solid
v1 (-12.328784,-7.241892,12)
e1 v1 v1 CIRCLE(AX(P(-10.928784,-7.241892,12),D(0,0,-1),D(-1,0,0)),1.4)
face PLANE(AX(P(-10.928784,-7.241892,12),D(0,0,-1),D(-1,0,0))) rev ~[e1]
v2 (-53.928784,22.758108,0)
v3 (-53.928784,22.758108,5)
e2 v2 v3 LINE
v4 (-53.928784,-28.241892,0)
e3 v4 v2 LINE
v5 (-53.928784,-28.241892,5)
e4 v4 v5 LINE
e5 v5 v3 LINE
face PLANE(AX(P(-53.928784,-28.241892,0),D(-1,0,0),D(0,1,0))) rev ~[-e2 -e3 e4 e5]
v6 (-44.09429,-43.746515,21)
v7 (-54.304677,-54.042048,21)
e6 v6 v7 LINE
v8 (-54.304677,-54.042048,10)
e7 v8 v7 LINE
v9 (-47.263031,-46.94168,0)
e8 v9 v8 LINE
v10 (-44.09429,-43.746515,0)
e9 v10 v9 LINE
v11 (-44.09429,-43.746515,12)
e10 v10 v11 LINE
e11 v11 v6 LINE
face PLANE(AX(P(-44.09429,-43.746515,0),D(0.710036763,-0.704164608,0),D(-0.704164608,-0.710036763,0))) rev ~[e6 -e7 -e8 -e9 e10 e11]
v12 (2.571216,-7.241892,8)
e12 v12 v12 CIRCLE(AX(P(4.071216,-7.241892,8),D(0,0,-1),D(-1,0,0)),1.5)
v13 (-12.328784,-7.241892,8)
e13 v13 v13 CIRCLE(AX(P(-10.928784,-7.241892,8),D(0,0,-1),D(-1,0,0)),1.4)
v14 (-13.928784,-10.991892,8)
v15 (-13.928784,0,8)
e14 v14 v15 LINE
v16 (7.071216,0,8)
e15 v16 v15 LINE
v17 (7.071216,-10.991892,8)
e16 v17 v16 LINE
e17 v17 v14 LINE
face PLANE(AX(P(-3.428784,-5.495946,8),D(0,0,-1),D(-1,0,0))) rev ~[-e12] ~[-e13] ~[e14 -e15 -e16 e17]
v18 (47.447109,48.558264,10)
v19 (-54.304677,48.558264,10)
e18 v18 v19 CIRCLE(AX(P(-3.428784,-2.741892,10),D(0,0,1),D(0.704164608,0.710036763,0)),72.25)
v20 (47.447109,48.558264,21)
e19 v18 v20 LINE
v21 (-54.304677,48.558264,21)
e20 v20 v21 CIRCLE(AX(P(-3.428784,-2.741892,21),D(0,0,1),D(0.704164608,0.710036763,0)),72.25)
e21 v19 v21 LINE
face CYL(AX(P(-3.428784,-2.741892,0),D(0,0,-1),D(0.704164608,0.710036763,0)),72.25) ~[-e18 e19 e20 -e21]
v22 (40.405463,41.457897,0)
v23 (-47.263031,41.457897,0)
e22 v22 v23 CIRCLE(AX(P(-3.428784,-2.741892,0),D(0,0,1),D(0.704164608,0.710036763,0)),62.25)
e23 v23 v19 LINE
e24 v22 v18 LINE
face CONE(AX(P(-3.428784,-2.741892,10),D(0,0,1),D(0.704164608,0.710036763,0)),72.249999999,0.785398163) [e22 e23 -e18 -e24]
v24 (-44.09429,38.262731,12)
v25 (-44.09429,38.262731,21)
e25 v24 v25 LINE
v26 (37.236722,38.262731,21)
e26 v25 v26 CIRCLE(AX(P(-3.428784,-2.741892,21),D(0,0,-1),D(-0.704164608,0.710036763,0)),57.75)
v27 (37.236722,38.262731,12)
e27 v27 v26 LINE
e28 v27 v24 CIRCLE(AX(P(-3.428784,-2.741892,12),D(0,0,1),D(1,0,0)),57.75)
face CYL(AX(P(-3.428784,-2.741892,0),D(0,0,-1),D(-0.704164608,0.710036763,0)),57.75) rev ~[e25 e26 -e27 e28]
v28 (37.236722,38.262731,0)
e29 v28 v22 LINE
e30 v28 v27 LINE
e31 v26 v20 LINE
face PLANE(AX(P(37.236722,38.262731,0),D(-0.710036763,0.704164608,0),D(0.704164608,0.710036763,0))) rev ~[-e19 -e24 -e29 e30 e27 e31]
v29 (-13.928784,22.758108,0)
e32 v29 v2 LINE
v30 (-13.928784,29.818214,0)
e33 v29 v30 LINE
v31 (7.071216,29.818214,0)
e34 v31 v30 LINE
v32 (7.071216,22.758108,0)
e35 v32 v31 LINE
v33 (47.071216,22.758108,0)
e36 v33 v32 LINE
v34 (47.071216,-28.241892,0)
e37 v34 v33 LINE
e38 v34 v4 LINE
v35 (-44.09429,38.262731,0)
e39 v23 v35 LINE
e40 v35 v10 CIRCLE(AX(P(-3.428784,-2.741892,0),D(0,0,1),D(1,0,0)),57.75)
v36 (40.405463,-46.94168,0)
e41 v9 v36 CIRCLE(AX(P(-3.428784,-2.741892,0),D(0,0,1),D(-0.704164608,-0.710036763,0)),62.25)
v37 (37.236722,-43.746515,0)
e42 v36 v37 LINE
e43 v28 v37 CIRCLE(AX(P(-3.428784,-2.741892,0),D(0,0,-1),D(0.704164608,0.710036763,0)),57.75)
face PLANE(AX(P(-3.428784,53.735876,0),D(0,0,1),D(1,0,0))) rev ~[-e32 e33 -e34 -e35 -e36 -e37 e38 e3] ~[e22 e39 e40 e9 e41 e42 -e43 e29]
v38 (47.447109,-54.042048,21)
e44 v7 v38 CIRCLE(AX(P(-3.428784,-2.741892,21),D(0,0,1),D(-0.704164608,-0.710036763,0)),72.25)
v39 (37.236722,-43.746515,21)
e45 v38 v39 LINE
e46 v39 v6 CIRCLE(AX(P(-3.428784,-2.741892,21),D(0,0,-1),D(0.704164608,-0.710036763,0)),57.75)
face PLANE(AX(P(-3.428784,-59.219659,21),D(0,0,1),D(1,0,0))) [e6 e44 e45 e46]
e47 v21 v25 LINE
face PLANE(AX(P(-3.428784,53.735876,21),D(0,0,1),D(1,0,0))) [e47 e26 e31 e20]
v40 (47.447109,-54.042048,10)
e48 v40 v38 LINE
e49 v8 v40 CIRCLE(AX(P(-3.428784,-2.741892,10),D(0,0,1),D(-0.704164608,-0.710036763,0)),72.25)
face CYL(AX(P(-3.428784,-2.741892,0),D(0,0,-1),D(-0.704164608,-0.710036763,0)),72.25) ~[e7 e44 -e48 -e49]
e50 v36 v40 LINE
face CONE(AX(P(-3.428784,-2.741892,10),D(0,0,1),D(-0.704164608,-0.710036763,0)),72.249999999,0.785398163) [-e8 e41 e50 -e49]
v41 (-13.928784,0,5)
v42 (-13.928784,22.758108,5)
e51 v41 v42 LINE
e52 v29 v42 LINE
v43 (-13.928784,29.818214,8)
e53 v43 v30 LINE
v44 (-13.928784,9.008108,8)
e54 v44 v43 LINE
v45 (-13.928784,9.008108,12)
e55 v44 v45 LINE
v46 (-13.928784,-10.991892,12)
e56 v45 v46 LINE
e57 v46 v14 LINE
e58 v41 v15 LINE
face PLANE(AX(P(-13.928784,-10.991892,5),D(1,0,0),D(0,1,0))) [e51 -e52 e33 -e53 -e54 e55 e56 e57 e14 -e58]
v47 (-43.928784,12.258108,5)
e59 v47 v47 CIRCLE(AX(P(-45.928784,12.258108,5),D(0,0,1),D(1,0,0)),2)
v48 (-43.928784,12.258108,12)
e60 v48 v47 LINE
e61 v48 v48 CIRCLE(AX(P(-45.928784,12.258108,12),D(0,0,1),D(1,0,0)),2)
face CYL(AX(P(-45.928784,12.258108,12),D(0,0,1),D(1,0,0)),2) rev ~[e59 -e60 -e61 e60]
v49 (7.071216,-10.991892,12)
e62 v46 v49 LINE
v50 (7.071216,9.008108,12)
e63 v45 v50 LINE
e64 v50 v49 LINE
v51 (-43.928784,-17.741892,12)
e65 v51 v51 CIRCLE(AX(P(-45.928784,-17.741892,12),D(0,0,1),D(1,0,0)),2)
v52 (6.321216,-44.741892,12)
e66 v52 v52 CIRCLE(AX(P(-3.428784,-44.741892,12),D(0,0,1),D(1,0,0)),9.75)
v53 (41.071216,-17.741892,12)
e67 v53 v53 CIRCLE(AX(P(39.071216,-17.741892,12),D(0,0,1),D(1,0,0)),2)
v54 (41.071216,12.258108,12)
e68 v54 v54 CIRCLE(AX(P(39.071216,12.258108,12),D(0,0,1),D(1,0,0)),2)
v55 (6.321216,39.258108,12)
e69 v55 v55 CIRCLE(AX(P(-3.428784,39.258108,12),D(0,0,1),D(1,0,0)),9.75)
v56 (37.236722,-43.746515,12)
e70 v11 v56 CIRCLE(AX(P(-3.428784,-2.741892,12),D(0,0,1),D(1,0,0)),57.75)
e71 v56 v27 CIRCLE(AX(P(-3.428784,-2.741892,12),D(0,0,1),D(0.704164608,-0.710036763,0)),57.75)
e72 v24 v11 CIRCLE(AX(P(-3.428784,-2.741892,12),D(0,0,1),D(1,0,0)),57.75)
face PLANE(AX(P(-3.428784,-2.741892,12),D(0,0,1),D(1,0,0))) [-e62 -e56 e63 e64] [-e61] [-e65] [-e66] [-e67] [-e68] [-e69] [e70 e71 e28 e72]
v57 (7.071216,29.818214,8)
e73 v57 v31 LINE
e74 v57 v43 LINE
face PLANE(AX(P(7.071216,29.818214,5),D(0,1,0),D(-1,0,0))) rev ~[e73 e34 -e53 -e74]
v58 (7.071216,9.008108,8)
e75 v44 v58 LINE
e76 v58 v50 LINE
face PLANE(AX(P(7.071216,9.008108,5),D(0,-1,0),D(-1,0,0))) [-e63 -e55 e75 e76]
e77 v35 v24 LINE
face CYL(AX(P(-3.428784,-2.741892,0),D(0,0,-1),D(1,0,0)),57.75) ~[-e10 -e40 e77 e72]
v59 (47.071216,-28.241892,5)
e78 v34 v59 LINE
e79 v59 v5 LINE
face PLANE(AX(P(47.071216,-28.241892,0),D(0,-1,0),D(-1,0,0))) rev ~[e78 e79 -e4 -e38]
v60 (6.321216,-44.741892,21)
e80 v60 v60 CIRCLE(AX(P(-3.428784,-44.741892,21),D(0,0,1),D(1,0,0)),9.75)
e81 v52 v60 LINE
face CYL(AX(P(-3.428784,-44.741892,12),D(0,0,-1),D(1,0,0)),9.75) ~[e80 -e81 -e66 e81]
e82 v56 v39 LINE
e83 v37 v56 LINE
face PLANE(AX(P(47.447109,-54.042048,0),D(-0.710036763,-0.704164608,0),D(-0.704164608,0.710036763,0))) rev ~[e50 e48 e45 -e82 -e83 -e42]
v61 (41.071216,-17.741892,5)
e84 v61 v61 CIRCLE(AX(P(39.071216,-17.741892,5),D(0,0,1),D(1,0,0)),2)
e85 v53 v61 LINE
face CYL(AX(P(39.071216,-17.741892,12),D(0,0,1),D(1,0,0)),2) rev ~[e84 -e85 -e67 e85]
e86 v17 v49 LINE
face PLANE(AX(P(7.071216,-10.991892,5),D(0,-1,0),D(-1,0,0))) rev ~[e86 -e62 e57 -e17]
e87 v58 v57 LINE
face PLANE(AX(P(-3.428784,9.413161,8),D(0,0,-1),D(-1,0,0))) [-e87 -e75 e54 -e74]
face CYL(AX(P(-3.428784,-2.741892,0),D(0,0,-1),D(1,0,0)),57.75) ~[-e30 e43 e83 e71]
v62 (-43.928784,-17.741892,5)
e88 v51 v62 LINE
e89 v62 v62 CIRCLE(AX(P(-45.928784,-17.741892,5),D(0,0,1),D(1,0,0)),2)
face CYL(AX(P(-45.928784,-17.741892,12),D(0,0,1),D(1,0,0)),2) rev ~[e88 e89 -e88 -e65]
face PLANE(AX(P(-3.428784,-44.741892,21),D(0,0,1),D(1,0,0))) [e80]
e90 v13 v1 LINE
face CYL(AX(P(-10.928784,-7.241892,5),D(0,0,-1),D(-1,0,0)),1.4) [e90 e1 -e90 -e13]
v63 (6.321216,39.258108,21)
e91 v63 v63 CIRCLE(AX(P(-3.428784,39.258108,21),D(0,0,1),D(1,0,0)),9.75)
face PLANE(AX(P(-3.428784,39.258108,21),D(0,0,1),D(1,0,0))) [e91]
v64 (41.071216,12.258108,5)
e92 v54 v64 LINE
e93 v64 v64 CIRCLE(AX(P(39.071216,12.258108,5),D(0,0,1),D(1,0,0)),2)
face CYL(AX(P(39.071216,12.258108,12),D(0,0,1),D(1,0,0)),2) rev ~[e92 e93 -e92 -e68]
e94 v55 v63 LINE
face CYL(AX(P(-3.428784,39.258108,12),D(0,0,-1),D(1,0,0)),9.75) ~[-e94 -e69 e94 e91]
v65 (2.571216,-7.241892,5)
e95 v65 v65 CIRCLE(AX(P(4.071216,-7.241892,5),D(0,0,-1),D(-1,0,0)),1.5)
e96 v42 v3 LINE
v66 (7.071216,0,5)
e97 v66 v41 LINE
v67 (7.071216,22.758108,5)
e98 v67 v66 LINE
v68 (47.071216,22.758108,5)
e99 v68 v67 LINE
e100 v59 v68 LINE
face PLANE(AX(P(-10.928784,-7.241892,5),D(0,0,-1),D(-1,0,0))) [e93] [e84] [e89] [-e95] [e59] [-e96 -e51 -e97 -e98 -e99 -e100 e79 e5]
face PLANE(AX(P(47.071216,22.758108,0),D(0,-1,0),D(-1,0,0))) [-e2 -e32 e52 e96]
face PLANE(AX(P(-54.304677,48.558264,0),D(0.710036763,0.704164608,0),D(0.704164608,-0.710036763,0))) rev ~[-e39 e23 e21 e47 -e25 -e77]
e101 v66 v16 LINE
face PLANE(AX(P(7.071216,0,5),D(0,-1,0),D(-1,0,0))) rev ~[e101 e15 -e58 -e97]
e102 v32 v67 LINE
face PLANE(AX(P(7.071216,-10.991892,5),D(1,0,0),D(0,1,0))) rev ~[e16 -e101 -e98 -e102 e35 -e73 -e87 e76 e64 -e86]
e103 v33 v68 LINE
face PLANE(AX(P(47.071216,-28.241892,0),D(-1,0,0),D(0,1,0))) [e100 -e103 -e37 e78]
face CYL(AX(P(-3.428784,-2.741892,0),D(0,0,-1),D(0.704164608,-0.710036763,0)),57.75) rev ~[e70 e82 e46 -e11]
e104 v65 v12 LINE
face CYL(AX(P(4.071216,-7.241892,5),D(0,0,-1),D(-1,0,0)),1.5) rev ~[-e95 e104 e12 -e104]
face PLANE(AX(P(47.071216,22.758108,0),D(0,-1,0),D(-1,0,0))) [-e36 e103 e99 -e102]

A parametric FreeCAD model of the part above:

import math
import FreeCAD as App
import Part
import Sketcher

V = App.Vector


def edges_at(feature, points):
    """Names of the edges that pass closest to the given points."""
    edges = feature.Shape.Edges
    near = lambda p: min(range(len(edges)), key=lambda i: edges[i].distToShape(Part.Vertex(*p))[0])
    return sorted({f"Edge{near(p) + 1}" for p in points})

doc = App.newDocument("Part")
body = doc.addObject("PartDesign::Body", "Body")

# Sketch on XY plane
sketch1 = doc.addObject("Sketcher::SketchObject", "Sketch")
body.addObject(sketch1)
sketch1.AttachmentSupport = (doc.XY_Plane, [""])
sketch1.MapMode = "FlatFace"
sketch1.addGeometry(Part.Circle(V(-3, -3, 0), V(0, 0, 1), 58), False)
sketch1.addConstraint([
    Sketcher.Constraint("Diameter", 0, 115.5),
    Sketcher.Constraint("DistanceY", 0, 3, -1, 1, 2.741892),
    Sketcher.Constraint("DistanceX", 0, 3, -1, 1, 3.428784),
])
pad1 = doc.addObject("PartDesign::Pad", "Pad")
body.addObject(pad1)
pad1.Profile = sketch1
pad1.Length = 12

# Sketch on XY plane
sketch2 = doc.addObject("Sketcher::SketchObject", "Sketch001")
body.addObject(sketch2)
sketch2.AttachmentSupport = (doc.XY_Plane, [""])
sketch2.MapMode = "FlatFace"
sketch2.addGeometry([
    Part.LineSegment(V(-54, 49, 0), V(-44, 38, 0)),  # 0
    Part.ArcOfCircle(Part.Circle(V(-3, -3, 0), V(0, 0, 1), 58), math.radians(45), math.radians(135)),  # 1
    Part.LineSegment(V(37, 38, 0), V(47, 49, 0)),  # 2
    Part.ArcOfCircle(Part.Circle(V(-3, -3, 0), V(0, 0, 1), 72), math.radians(45), math.radians(135)),  # 3
    Part.ArcOfCircle(Part.Circle(V(-3, -3, 0), V(0, 0, 1), 58), math.radians(-135), math.radians(-45)),  # 4
    Part.LineSegment(V(-44, -44, 0), V(-54, -54, 0)),  # 5
    Part.ArcOfCircle(Part.Circle(V(-3, -3, 0), V(0, 0, 1), 72), math.radians(-135), math.radians(-45)),  # 6
    Part.LineSegment(V(47, -54, 0), V(37, -44, 0)),  # 7
], False)
sketch2.addConstraint([
    Sketcher.Constraint("Coincident", 0, 2, 1, 2),
    Sketcher.Constraint("Coincident", 1, 1, 2, 1),
    Sketcher.Constraint("Coincident", 2, 2, 3, 1),
    Sketcher.Constraint("Coincident", 3, 2, 0, 1),
    Sketcher.Constraint("Coincident", 4, 1, 5, 1),
    Sketcher.Constraint("Coincident", 5, 2, 6, 1),
    Sketcher.Constraint("Coincident", 6, 2, 7, 1),
    Sketcher.Constraint("Coincident", 7, 2, 4, 2),
    Sketcher.Constraint("Coincident", 3, 3, 1, 3),
    Sketcher.Constraint("Coincident", 4, 3, 1, 3),
    Sketcher.Constraint("Coincident", 6, 3, 1, 3),
    Sketcher.Constraint("Equal", 1, 4),
    Sketcher.Constraint("Equal", 3, 6),
    Sketcher.Constraint("Parallel", 2, 5),
    Sketcher.Constraint("Parallel", 0, 7),
    Sketcher.Constraint("Horizontal", 0, 2, 1, 1),
    Sketcher.Constraint("Horizontal", 2, 2, 3, 2),
    Sketcher.Constraint("Horizontal", 5, 2, 6, 2),
    Sketcher.Constraint("Vertical", 0, 2, 4, 1),
    Sketcher.Constraint("Radius", 1, 57.75),
    Sketcher.Constraint("Radius", 3, 72.25),
    Sketcher.Constraint("DistanceX", 4, 1, 6, 2, 91.541399),
    Sketcher.Constraint("DistanceY", 1, 3, -1, 1, 2.741892),
    Sketcher.Constraint("DistanceX", 0, 2, -1, 1, 44.09429),
    Sketcher.Constraint("DistanceY", -1, 1, 0, 2, 38.262731),
])
pad2 = doc.addObject("PartDesign::Pad", "Pad001")
body.addObject(pad2)
pad2.Profile = sketch2
pad2.Length = 21

# Sketch on XY plane
sketch3 = doc.addObject("Sketcher::SketchObject", "Sketch002")
body.addObject(sketch3)
sketch3.AttachmentSupport = (doc.XY_Plane, [""])
sketch3.MapMode = "FlatFace"
sketch3.addGeometry([
    Part.LineSegment(V(47, 23, 0), V(47, -28, 0)),
    Part.LineSegment(V(47, -28, 0), V(-54, -28, 0)),
    Part.LineSegment(V(-54, -28, 0), V(-54, 23, 0)),
    Part.LineSegment(V(-54, 23, 0), V(47, 23, 0)),
], False)
sketch3.addConstraint([
    Sketcher.Constraint("Coincident", 0, 2, 1, 1),
    Sketcher.Constraint("Coincident", 1, 2, 2, 1),
    Sketcher.Constraint("Coincident", 2, 2, 3, 1),
    Sketcher.Constraint("Coincident", 3, 2, 0, 1),
    Sketcher.Constraint("Vertical", 0),
    Sketcher.Constraint("Horizontal", 1),
    Sketcher.Constraint("Vertical", 2),
    Sketcher.Constraint("Horizontal", 3),
    Sketcher.Constraint("DistanceX", 1, 2, 1, 1, 101.0),
    Sketcher.Constraint("DistanceY", 0, 2, 0, 1, 51.0),
    Sketcher.Constraint("DistanceY", 0, 2, -1, 1, 28.241892),
    Sketcher.Constraint("DistanceX", -1, 1, 0, 2, 47.071216),
])
pocket1 = doc.addObject("PartDesign::Pocket", "Pocket")
body.addObject(pocket1)
pocket1.Profile = sketch3
pocket1.Length = 5
pocket1.Reversed = True

# Sketch on XY plane
sketch4 = doc.addObject("Sketcher::SketchObject", "Sketch003")
body.addObject(sketch4)
sketch4.AttachmentSupport = (doc.XY_Plane, [""])
sketch4.MapMode = "FlatFace"
sketch4.AttachmentOffset = App.Placement(V(0, 0, 5), App.Rotation())
sketch4.addGeometry([
    Part.LineSegment(V(7, 9, 0), V(7, -11, 0)),
    Part.LineSegment(V(7, -11, 0), V(-14, -11, 0)),
    Part.LineSegment(V(-14, -11, 0), V(-14, 9, 0)),
    Part.LineSegment(V(-14, 9, 0), V(7, 9, 0)),
], False)
sketch4.addConstraint([
    Sketcher.Constraint("Coincident", 0, 2, 1, 1),
    Sketcher.Constraint("Coincident", 1, 2, 2, 1),
    Sketcher.Constraint("Coincident", 2, 2, 3, 1),
    Sketcher.Constraint("Coincident", 3, 2, 0, 1),
    Sketcher.Constraint("Vertical", 0),
    Sketcher.Constraint("Horizontal", 1),
    Sketcher.Constraint("Vertical", 2),
    Sketcher.Constraint("Horizontal", 3),
    Sketcher.Constraint("DistanceX", 1, 2, 1, 1, 21.0),
    Sketcher.Constraint("DistanceY", 0, 2, 0, 1, 20.0),
    Sketcher.Constraint("DistanceY", 0, 2, -1, 1, 10.991892),
    Sketcher.Constraint("DistanceX", -1, 1, 0, 2, 7.071216),
])
pocket2 = doc.addObject("PartDesign::Pocket", "Pocket001")
body.addObject(pocket2)
pocket2.Profile = sketch4
pocket2.Length = 8
pocket2.Reversed = True

# Sketch on XY plane
sketch5 = doc.addObject("Sketcher::SketchObject", "Sketch004")
body.addObject(sketch5)
sketch5.AttachmentSupport = (doc.XY_Plane, [""])
sketch5.MapMode = "FlatFace"
sketch5.AttachmentOffset = App.Placement(V(0, 0, 5), App.Rotation())
sketch5.addGeometry([
    Part.LineSegment(V(7, 30, 0), V(7, -11, 0)),
    Part.LineSegment(V(7, -11, 0), V(-14, -11, 0)),
    Part.LineSegment(V(-14, -11, 0), V(-14, 30, 0)),
    Part.LineSegment(V(-14, 30, 0), V(7, 30, 0)),
], False)
sketch5.addConstraint([
    Sketcher.Constraint("Coincident", 0, 2, 1, 1),
    Sketcher.Constraint("Coincident", 1, 2, 2, 1),
    Sketcher.Constraint("Coincident", 2, 2, 3, 1),
    Sketcher.Constraint("Coincident", 3, 2, 0, 1),
    Sketcher.Constraint("Vertical", 0),
    Sketcher.Constraint("Horizontal", 1),
    Sketcher.Constraint("Vertical", 2),
    Sketcher.Constraint("Horizontal", 3),
    Sketcher.Constraint("DistanceX", 1, 2, 1, 1, 21.0),
    Sketcher.Constraint("DistanceY", 0, 2, 0, 1, 40.810106),
    Sketcher.Constraint("DistanceY", 0, 2, -1, 1, 10.991892),
    Sketcher.Constraint("DistanceX", -1, 1, 0, 2, 7.071216),
])
pocket3 = doc.addObject("PartDesign::Pocket", "Pocket002")
body.addObject(pocket3)
pocket3.Profile = sketch5
pocket3.Type = "TwoLengths"
pocket3.Length = 35
pocket3.Length2 = 3

# Sketch on XY plane
sketch6 = doc.addObject("Sketcher::SketchObject", "Sketch005")
body.addObject(sketch6)
sketch6.AttachmentSupport = (doc.XY_Plane, [""])
sketch6.MapMode = "FlatFace"
sketch6.AttachmentOffset = App.Placement(V(0, 0, 5), App.Rotation())
sketch6.addGeometry([
    Part.LineSegment(V(7, 0, 0), V(7, -11, 0)),
    Part.LineSegment(V(7, -11, 0), V(-14, -11, 0)),
    Part.LineSegment(V(-14, -11, 0), V(-14, 0, 0)),
    Part.LineSegment(V(-14, 0, 0), V(7, 0, 0)),
], False)
sketch6.addConstraint([
    Sketcher.Constraint("Coincident", 0, 2, 1, 1),
    Sketcher.Constraint("Coincident", 1, 2, 2, 1),
    Sketcher.Constraint("Coincident", 2, 2, 3, 1),
    Sketcher.Constraint("Coincident", 3, 2, 0, 1),
    Sketcher.Constraint("Vertical", 0),
    Sketcher.Constraint("Horizontal", 1),
    Sketcher.Constraint("Vertical", 2),
    Sketcher.Constraint("Horizontal", 3),
    Sketcher.Constraint("PointOnObject", 2, 2, -1),
    Sketcher.Constraint("DistanceX", 1, 2, 1, 1, 21.0),
    Sketcher.Constraint("DistanceY", 0, 2, 0, 1, 10.991892),
    Sketcher.Constraint("DistanceX", -1, 1, 0, 2, 7.071216),
])
pad3 = doc.addObject("PartDesign::Pad", "Pad002")
body.addObject(pad3)
pad3.Profile = sketch6
pad3.Length = 3

# Sketch on XY plane
sketch7 = doc.addObject("Sketcher::SketchObject", "Sketch006")
body.addObject(sketch7)
sketch7.AttachmentSupport = (doc.XY_Plane, [""])
sketch7.MapMode = "FlatFace"
sketch7.AttachmentOffset = App.Placement(V(0, 0, 12), App.Rotation())
sketch7.addGeometry([
    Part.Circle(V(-45.9, -17.7, 0), V(0, 0, 1), 2),
    Part.Circle(V(-45.9, 12.3, 0), V(0, 0, 1), 2),
    Part.Circle(V(39.1, 12.3, 0), V(0, 0, 1), 2),
    Part.Circle(V(39.1, -17.7, 0), V(0, 0, 1), 2),
], False)
sketch7.addConstraint([
    Sketcher.Constraint("Equal", 0, 1),
    Sketcher.Constraint("Equal", 1, 2),
    Sketcher.Constraint("Equal", 2, 3),
    Sketcher.Constraint("Horizontal", 1, 3, 2, 3),
    Sketcher.Constraint("Horizontal", 0, 3, 3, 3),
    Sketcher.Constraint("Vertical", 0, 3, 1, 3),
    Sketcher.Constraint("Vertical", 2, 3, 3, 3),
    Sketcher.Constraint("Diameter", 0, 4.0),
    Sketcher.Constraint("DistanceY", 0, 3, 1, 3, 30.0),
    Sketcher.Constraint("DistanceX", 1, 3, 2, 3, 85.0),
    Sketcher.Constraint("DistanceY", 0, 3, -1, 1, 17.741892),
    Sketcher.Constraint("DistanceX", 0, 3, -1, 1, 45.928784),
])
pocket4 = doc.addObject("PartDesign::Pocket", "Pocket003")
body.addObject(pocket4)
pocket4.Profile = sketch7
pocket4.Length = 31

# Sketch on XY plane
sketch8 = doc.addObject("Sketcher::SketchObject", "Sketch007")
body.addObject(sketch8)
sketch8.AttachmentSupport = (doc.XY_Plane, [""])
sketch8.MapMode = "FlatFace"
sketch8.AttachmentOffset = App.Placement(V(0, 0, 12), App.Rotation())
sketch8.addGeometry([
    Part.Circle(V(-3, -45, 0), V(0, 0, 1), 10),
    Part.Circle(V(-3, 39, 0), V(0, 0, 1), 10),
], False)
sketch8.addConstraint([
    Sketcher.Constraint("Equal", 0, 1),
    Sketcher.Constraint("Vertical", 0, 3, 1, 3),
    Sketcher.Constraint("Diameter", 0, 19.5),
    Sketcher.Constraint("DistanceY", 0, 3, 1, 3, 84.0),
    Sketcher.Constraint("DistanceY", 0, 3, -1, 1, 44.741892),
    Sketcher.Constraint("DistanceX", 0, 3, -1, 1, 3.428784),
])
pad4 = doc.addObject("PartDesign::Pad", "Pad003")
body.addObject(pad4)
pad4.Profile = sketch8
pad4.Length = 9

# Sketch on XY plane
sketch9 = doc.addObject("Sketcher::SketchObject", "Sketch008")
body.addObject(sketch9)
sketch9.AttachmentSupport = (doc.XY_Plane, [""])
sketch9.MapMode = "FlatFace"
sketch9.AttachmentOffset = App.Placement(V(0, 0, 5), App.Rotation())
sketch9.addGeometry(Part.Circle(V(-10.9, -7.2, 0), V(0, 0, 1), 1.4), False)
sketch9.addConstraint([
    Sketcher.Constraint("Diameter", 0, 2.8),
    Sketcher.Constraint("DistanceY", 0, 3, -1, 1, 7.241892),
    Sketcher.Constraint("DistanceX", 0, 3, -1, 1, 10.928784),
])
pad5 = doc.addObject("PartDesign::Pad", "Pad004")
body.addObject(pad5)
pad5.Profile = sketch9
pad5.Length = 7

# Sketch on XY plane
sketch10 = doc.addObject("Sketcher::SketchObject", "Sketch009")
body.addObject(sketch10)
sketch10.AttachmentSupport = (doc.XY_Plane, [""])
sketch10.MapMode = "FlatFace"
sketch10.AttachmentOffset = App.Placement(V(0, 0, 5), App.Rotation())
sketch10.addGeometry(Part.Circle(V(4.1, -7.2, 0), V(0, 0, 1), 1.5), False)
sketch10.addConstraint([
    Sketcher.Constraint("Diameter", 0, 3.0),
    Sketcher.Constraint("DistanceY", 0, 3, -1, 1, 7.241892),
    Sketcher.Constraint("DistanceX", -1, 1, 0, 3, 4.071216),
])
pocket5 = doc.addObject("PartDesign::Pocket", "Pocket004")
body.addObject(pocket5)
pocket5.Profile = sketch10
pocket5.Length = 10
pocket5.Reversed = True
doc.recompute()

chamfer = doc.addObject("PartDesign::Chamfer", "Chamfer")
body.addObject(chamfer)
chamfer.Base = (pocket5, edges_at(pocket5, [(-3.429, -74.992, 0), (-3.429, 69.508, 0)]))
chamfer.Size = 10

doc.recompute()
